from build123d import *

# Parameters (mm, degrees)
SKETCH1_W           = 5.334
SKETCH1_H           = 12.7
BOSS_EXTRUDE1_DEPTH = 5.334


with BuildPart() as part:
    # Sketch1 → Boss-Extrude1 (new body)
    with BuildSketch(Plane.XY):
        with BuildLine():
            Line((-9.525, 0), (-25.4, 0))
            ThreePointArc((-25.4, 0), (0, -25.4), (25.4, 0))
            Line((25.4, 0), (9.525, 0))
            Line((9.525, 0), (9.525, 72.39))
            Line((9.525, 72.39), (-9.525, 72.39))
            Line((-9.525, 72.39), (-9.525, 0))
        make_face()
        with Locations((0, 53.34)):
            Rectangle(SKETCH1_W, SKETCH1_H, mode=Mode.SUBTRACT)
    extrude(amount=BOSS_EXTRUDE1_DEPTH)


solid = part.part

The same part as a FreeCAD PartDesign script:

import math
import FreeCAD as App
import Part
import Sketcher
Q = App.Units.Quantity


def add_polygon(sketch, points):
    """Adds a closed chain of lines whose ends are joined by coincident constraints."""
    first, n = sketch.GeometryCount, len(points)
    for a, b in zip(points, points[1:] + points[:1]):
        sketch.addGeometry(Part.LineSegment(App.Vector(*a, 0), App.Vector(*b, 0)), False)
    for i in range(n):
        sketch.addConstraint(Sketcher.Constraint("Coincident", first + i, 2, first + (i + 1) % n, 1))

doc = App.newDocument("Part")
body = doc.addObject("PartDesign::Body", "Body")

# Sketch on XY plane
sketch1 = body.newObject("Sketcher::SketchObject", "Sketch")
sketch1.AttachmentSupport = (doc.getObject("XY_Plane"), [""])
sketch1.MapMode = "FlatFace"
sketch1.addGeometry(Part.LineSegment(App.Vector(-10, 0, 0), App.Vector(-25, 0, 0)), False)  # 0
sketch1.addGeometry(Part.ArcOfCircle(Part.Circle(App.Vector(0, 0, 0), App.Vector(0, 0, 1), 25), math.radians(180), math.radians(360)), False)  # 1
sketch1.addGeometry(Part.LineSegment(App.Vector(25, 0, 0), App.Vector(10, 0, 0)), False)  # 2
sketch1.addGeometry(Part.LineSegment(App.Vector(10, 0, 0), App.Vector(10, 72, 0)), False)  # 3
sketch1.addGeometry(Part.LineSegment(App.Vector(10, 72, 0), App.Vector(-10, 72, 0)), False)  # 4
sketch1.addGeometry(Part.LineSegment(App.Vector(-10, 72, 0), App.Vector(-10, 0, 0)), False)  # 5
add_polygon(sketch1, [(3, 47), (-3, 47), (-3, 60), (3, 60)])  # lines 6-9
sketch1.addConstraint([
    Sketcher.Constraint("Coincident", 0, 2, 1, 1),
    Sketcher.Constraint("Coincident", 1, 2, 2, 1),
    Sketcher.Constraint("Coincident", 2, 2, 3, 1),
    Sketcher.Constraint("Coincident", 3, 2, 4, 1),
    Sketcher.Constraint("Coincident", 4, 2, 5, 1),
    Sketcher.Constraint("Coincident", 5, 2, 0, 1),
    Sketcher.Constraint("Horizontal", 0),
    Sketcher.Constraint("Horizontal", 2),
    Sketcher.Constraint("Vertical", 3),
    Sketcher.Constraint("Horizontal", 4),
    Sketcher.Constraint("Vertical", 5),
    Sketcher.Constraint("Horizontal", 6),
    Sketcher.Constraint("Vertical", 7),
    Sketcher.Constraint("Horizontal", 8),
    Sketcher.Constraint("Vertical", 9),
    Sketcher.Constraint("Coincident", 1, 3, -1, 1),
    Sketcher.Constraint("Symmetric", 2, 2, 5, 2, -1, 1),
    Sketcher.Constraint("PointOnObject", 0, 2, -1),
    Sketcher.Constraint("Radius", 1, Q("1 in")),
    Sketcher.Constraint("DistanceY", 7, 1, 7, 2, Q("0.5 in")),
    Sketcher.Constraint("DistanceY", 6, 2, 4, 2, Q("1 in")),
    Sketcher.Constraint("DistanceX", 4, 2, 4, 1, Q("0.75 in")),
    Sketcher.Constraint("DistanceX", 6, 2, 6, 1, Q("0.21 in")),
    Sketcher.Constraint("DistanceY", 3, 1, 3, 2, Q("2.85 in")),
    Sketcher.Constraint("DistanceX", 4, 2, 6, 2, Q("0.27 in")),
])
pad1 = body.newObject("PartDesign::Pad", "Pad")
pad1.Profile = sketch1
pad1.Length = Q("0.21 in")

doc.recompute()
